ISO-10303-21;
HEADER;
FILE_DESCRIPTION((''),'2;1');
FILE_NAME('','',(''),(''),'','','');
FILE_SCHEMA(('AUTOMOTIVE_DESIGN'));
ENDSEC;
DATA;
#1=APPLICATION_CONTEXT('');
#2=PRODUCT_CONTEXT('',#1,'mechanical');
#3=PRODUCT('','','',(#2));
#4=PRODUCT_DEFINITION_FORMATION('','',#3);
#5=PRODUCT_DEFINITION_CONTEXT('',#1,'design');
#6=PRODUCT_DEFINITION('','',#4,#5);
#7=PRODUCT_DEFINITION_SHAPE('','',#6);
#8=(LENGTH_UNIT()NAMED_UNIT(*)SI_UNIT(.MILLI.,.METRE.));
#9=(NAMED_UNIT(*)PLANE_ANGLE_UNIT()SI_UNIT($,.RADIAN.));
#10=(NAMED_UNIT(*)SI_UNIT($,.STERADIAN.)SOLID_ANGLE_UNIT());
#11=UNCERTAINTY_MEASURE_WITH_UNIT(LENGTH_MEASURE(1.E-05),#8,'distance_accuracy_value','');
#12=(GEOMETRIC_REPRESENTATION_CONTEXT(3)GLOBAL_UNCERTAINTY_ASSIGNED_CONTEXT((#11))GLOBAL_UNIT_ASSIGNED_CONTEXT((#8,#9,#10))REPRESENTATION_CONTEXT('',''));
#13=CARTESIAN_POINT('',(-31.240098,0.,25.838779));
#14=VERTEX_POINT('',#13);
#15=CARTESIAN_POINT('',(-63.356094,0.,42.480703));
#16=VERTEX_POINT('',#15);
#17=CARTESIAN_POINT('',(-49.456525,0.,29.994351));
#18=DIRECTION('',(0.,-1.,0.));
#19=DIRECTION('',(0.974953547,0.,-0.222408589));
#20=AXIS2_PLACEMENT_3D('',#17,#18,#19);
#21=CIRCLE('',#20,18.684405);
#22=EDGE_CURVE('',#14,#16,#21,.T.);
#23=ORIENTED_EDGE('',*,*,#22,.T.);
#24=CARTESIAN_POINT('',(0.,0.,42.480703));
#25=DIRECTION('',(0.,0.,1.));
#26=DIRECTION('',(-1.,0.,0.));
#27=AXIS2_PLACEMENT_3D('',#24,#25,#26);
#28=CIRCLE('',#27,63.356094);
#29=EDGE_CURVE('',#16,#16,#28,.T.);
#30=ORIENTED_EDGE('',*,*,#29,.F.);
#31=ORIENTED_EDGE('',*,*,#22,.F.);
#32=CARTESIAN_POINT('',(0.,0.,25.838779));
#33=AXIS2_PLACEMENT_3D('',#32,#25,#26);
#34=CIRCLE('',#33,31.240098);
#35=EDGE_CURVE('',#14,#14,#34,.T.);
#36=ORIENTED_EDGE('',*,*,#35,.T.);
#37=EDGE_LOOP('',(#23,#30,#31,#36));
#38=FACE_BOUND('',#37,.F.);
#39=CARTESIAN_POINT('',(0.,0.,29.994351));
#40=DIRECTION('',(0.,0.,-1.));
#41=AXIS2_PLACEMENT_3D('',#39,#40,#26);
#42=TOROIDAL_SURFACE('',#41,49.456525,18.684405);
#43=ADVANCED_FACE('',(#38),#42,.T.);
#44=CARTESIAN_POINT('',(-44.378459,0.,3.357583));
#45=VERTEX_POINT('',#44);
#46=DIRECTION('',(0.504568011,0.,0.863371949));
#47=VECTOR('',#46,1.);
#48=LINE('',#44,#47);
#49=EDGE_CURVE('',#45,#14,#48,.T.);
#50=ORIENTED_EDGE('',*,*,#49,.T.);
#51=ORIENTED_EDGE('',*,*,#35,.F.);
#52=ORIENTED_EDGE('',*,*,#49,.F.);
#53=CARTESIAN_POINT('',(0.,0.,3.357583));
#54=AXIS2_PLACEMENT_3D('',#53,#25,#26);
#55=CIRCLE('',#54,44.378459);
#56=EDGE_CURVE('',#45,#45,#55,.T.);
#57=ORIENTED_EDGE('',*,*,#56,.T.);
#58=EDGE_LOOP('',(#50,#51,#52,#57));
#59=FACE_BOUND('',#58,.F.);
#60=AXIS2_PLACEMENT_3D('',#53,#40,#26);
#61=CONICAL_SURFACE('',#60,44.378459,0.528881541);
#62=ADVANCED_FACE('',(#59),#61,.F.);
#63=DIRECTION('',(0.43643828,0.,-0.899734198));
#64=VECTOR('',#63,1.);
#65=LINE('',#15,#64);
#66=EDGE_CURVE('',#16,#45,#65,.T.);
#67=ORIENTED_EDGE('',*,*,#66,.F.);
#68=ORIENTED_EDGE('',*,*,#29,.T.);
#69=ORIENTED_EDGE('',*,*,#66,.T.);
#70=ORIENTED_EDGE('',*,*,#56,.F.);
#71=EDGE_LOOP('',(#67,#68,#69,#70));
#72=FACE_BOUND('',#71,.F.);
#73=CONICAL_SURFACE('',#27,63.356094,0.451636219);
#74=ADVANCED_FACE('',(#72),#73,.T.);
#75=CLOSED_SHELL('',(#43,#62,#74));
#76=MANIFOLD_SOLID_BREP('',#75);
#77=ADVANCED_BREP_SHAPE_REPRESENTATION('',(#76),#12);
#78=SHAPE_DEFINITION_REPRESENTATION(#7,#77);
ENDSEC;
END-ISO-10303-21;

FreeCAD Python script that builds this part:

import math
import FreeCAD as App
import Part
import Sketcher

doc = App.newDocument("Part")
body = doc.addObject("PartDesign::Body", "Body")

# Sketch on XZ plane
sketch1 = body.newObject("Sketcher::SketchObject", "Sketch")
sketch1.AttachmentSupport = (doc.getObject("XZ_Plane"), [""])
sketch1.MapMode = "FlatFace"
sketch1.addGeometry(Part.ArcOfCircle(Part.Circle(App.Vector(-49.456525, 29.994351, 0), App.Vector(0, 0, 1), 18.684405), math.radians(-12.85054), math.radians(138.065805)), False)
sketch1.addGeometry(Part.LineSegment(App.Vector(-63.356094, 42.480703, 0), App.Vector(-44.378459, 3.357583, 0)), False)
sketch1.addGeometry(Part.LineSegment(App.Vector(-44.378459, 3.357583, 0), App.Vector(-31.240098, 25.838779, 0)), False)
sketch1.addConstraint(Sketcher.Constraint("Coincident", 0, 2, 1, 1))
sketch1.addConstraint(Sketcher.Constraint("Coincident", 1, 2, 2, 1))
sketch1.addConstraint(Sketcher.Constraint("Coincident", 2, 2, 0, 1))
sketch1.addConstraint(Sketcher.Constraint("Radius", 0, 18.684405))
sketch1.addConstraint(Sketcher.Constraint("Distance", 2, 26.038831))
sketch1.addConstraint(Sketcher.Constraint("DistanceY", -1, 1, 0, 3, 29.994351))
sketch1.addConstraint(Sketcher.Constraint("DistanceX", 1, 2, -1, 1, 44.378459))
sketch1.addConstraint(Sketcher.Constraint("DistanceY", -1, 1, 2, 2, 25.838779))
sketch1.addConstraint(Sketcher.Constraint("DistanceX", 0, 2, 0, 3, 13.899569))
sketch1.addConstraint(Sketcher.Constraint("DistanceY", 1, 2, 0, 3, 26.636768))
revolution = body.newObject("PartDesign::Revolution", "Revolution")
revolution.Profile = sketch1
revolution.ReferenceAxis = (sketch1, ["V_Axis"])
revolution.Angle = 360

doc.recompute()
